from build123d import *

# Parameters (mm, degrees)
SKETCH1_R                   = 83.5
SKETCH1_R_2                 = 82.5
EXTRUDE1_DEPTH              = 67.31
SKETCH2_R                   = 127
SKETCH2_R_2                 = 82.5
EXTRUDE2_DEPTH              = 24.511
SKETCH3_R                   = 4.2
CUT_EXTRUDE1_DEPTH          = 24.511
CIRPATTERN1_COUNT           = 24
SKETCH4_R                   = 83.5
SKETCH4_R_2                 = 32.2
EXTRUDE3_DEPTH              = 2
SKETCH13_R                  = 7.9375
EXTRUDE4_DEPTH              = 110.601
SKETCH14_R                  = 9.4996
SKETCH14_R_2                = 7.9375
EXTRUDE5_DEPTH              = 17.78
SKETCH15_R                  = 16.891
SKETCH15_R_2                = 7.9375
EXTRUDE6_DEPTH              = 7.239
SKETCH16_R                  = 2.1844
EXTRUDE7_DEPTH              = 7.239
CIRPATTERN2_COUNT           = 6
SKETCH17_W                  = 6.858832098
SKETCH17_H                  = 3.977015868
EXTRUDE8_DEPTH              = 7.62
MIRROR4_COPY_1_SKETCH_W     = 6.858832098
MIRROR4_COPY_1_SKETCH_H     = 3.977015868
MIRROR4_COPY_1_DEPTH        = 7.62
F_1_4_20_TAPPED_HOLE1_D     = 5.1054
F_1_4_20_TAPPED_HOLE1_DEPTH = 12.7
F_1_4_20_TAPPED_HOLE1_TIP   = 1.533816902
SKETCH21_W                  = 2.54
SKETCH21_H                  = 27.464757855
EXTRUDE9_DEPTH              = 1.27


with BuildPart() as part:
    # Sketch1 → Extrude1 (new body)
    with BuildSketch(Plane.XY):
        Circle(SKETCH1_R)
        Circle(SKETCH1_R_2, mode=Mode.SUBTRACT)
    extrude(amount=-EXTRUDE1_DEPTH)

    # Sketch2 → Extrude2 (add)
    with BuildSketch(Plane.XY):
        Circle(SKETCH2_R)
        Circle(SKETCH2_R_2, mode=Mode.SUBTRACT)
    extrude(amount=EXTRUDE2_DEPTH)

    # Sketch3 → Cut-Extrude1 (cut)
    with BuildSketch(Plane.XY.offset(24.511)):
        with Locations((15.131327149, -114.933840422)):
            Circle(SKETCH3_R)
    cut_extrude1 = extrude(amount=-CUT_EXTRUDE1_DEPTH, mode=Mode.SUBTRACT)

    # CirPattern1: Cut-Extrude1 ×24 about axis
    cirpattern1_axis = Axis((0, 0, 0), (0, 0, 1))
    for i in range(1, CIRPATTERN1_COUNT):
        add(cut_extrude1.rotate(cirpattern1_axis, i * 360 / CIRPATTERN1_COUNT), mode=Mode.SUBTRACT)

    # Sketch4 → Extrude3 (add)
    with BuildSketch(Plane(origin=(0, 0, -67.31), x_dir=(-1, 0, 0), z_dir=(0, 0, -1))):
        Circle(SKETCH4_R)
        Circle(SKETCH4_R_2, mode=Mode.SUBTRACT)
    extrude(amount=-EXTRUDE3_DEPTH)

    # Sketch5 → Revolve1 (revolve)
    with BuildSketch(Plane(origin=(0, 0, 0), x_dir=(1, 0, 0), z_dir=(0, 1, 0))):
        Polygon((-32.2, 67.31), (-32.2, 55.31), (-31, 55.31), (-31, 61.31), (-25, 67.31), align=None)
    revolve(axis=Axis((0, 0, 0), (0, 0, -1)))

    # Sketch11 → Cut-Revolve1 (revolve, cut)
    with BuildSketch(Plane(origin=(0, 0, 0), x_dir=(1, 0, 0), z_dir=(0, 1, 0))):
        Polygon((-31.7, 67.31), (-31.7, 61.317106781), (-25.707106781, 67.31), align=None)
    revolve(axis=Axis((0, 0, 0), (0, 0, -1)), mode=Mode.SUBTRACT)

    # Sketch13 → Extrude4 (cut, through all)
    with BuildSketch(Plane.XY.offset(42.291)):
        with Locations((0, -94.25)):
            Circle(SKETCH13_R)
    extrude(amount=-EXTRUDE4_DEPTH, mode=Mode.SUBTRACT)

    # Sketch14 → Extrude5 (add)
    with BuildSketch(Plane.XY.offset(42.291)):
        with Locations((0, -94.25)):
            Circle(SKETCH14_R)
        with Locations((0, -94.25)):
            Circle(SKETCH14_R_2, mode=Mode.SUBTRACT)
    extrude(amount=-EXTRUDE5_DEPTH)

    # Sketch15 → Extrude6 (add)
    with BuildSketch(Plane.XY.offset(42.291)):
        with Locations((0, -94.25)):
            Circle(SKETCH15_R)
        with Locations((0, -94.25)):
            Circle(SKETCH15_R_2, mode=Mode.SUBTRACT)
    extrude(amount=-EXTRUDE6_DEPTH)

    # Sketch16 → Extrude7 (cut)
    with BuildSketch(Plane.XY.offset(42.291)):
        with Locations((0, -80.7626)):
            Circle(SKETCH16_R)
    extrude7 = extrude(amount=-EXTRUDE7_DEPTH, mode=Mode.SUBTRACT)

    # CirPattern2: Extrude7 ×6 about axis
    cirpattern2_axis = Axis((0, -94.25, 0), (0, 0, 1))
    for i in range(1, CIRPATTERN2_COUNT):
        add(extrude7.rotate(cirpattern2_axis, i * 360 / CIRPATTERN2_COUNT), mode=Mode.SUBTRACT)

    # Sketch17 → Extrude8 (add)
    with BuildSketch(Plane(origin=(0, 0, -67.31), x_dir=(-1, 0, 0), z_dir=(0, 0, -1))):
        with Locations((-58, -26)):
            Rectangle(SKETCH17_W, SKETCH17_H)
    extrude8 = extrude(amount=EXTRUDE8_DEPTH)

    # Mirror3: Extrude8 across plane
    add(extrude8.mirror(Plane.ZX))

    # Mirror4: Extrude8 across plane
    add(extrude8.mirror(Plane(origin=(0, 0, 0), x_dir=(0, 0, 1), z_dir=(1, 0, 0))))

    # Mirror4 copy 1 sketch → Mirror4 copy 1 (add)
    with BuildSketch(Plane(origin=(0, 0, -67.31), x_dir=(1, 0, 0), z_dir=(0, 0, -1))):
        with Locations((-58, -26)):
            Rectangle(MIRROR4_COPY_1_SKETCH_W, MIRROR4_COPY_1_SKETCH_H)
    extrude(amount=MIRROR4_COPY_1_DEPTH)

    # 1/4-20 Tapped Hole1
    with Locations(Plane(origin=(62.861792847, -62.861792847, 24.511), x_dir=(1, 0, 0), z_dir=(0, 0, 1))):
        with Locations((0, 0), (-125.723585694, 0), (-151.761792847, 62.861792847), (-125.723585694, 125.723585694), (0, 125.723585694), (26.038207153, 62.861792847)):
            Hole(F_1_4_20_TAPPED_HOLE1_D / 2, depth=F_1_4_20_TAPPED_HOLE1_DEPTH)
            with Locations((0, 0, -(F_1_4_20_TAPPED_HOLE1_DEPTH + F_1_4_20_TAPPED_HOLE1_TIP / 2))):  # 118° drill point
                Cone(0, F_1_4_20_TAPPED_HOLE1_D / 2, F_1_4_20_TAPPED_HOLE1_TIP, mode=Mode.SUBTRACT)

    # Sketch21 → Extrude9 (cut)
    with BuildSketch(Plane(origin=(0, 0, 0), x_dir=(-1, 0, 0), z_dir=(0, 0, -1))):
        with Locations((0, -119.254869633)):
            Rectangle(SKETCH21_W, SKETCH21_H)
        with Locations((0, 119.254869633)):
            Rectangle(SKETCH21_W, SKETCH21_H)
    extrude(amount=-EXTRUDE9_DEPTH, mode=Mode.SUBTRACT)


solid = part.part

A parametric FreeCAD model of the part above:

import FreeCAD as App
import Part
import Sketcher
from FreeCAD import Vector
Q = App.Units.Quantity

doc = App.newDocument("Part")
body = doc.addObject("PartDesign::Body", "Body")

sketch1 = body.newObject("Sketcher::SketchObject", "Sketch")
sketch1.AttachmentSupport = (doc.getObject("XY_Plane"), [""])
sketch1.MapMode = "FlatFace"
sketch1.addGeometry(Part.Circle(Vector(0, 0, 0), Vector(0, 0, 1), 84), False)
sketch1.addGeometry(Part.Circle(Vector(0, 0, 0), Vector(0, 0, 1), 82), False)
sketch1.addConstraint(Sketcher.Constraint("Coincident", 0, 3, -1, 1))
sketch1.addConstraint(Sketcher.Constraint("Coincident", 1, 3, -1, 1))
sketch1.addConstraint(Sketcher.Constraint("Diameter", 0, Q("167 mm")))
sketch1.addConstraint(Sketcher.Constraint("Diameter", 1, Q("165 mm")))
pad1 = body.newObject("PartDesign::Pad", "Pad")
pad1.Profile = sketch1
pad1.Length = Q("2.65 in")
pad1.Reversed = True

sketch2 = body.newObject("Sketcher::SketchObject", "Sketch001")
sketch2.AttachmentSupport = (doc.getObject("XY_Plane"), [""])
sketch2.MapMode = "FlatFace"
sketch2.addGeometry(Part.Circle(Vector(0, 0, 0), Vector(0, 0, 1), 127), False)
sketch2.addGeometry(Part.Circle(Vector(0, 0, 0), Vector(0, 0, 1), 82), False)
sketch2.addConstraint(Sketcher.Constraint("Coincident", 0, 3, -1, 1))
sketch2.addConstraint(Sketcher.Constraint("Coincident", 1, 3, -1, 1))
sketch2.addConstraint(Sketcher.Constraint("Diameter", 0, Q("10 in")))
sketch2.addConstraint(Sketcher.Constraint("Diameter", 1, Q("165 mm")))
pad2 = body.newObject("PartDesign::Pad", "Pad001")
pad2.Profile = sketch2
pad2.Length = Q("0.965 in")

sketch3 = body.newObject("Sketcher::SketchObject", "Sketch002")
sketch3.AttachmentSupport = (doc.getObject("XY_Plane"), [""])
sketch3.MapMode = "FlatFace"
sketch3.AttachmentOffset = App.Placement(Vector(0, 0, 0.965 * 25.4), App.Rotation())
sketch3.addGeometry(Part.Circle(Vector(15.1, -114.9, 0), Vector(0, 0, 1), 4.2), False)
sketch3.addConstraint(Sketcher.Constraint("Diameter", 0, Q("8.4 mm")))
sketch3.addConstraint(Sketcher.Constraint("DistanceY", 0, 3, -1, 1, Q("114.93384 mm")))
sketch3.addConstraint(Sketcher.Constraint("DistanceX", -1, 1, 0, 3, Q("15.131327 mm")))
pocket1 = body.newObject("PartDesign::Pocket", "Pocket")
pocket1.Profile = sketch3
pocket1.Length = Q("0.965 in")
doc.recompute()

polarpattern = body.newObject("PartDesign::PolarPattern", "PolarPattern")
polarpattern.Originals = [pocket1]
polarpattern.Axis = (doc.getObject("Z_Axis"), [""])
polarpattern.Angle = 360
polarpattern.Occurrences = 24
body.Tip = polarpattern

sketch4 = body.newObject("Sketcher::SketchObject", "Sketch003")
sketch4.AttachmentSupport = (doc.getObject("XY_Plane"), [""])
sketch4.MapMode = "FlatFace"
sketch4.AttachmentOffset = App.Placement(Vector(0, 0, -2.65 * 25.4), App.Rotation())
sketch4.addGeometry(Part.Circle(Vector(0, 0, 0), Vector(0, 0, 1), 84), False)
sketch4.addGeometry(Part.Circle(Vector(0, 0, 0), Vector(0, 0, 1), 32), False)
sketch4.addConstraint(Sketcher.Constraint("Coincident", 0, 3, -1, 1))
sketch4.addConstraint(Sketcher.Constraint("Coincident", 1, 3, -1, 1))
sketch4.addConstraint(Sketcher.Constraint("Diameter", 0, Q("167 mm")))
sketch4.addConstraint(Sketcher.Constraint("Diameter", 1, Q("64.4 mm")))
pad3 = body.newObject("PartDesign::Pad", "Pad002")
pad3.Profile = sketch4
pad3.Length = 2

sketch5 = body.newObject("Sketcher::SketchObject", "Sketch004")
sketch5.AttachmentSupport = (doc.getObject("XZ_Plane"), [""])
sketch5.MapMode = "FlatFace"
sketch5.addGeometry(Part.LineSegment(Vector(-32.2, -67.3, 0), Vector(-32.2, -55.3, 0)), False)
sketch5.addGeometry(Part.LineSegment(Vector(-32.2, -55.3, 0), Vector(-31, -55.3, 0)), False)
sketch5.addGeometry(Part.LineSegment(Vector(-31, -55.3, 0), Vector(-31, -61.3, 0)), False)
sketch5.addGeometry(Part.LineSegment(Vector(-31, -61.3, 0), Vector(-25, -67.3, 0)), False)
sketch5.addGeometry(Part.LineSegment(Vector(-25, -67.3, 0), Vector(-32.2, -67.3, 0)), False)
sketch5.addConstraint(Sketcher.Constraint("Coincident", 0, 2, 1, 1))
sketch5.addConstraint(Sketcher.Constraint("Coincident", 1, 2, 2, 1))
sketch5.addConstraint(Sketcher.Constraint("Coincident", 2, 2, 3, 1))
sketch5.addConstraint(Sketcher.Constraint("Coincident", 3, 2, 4, 1))
sketch5.addConstraint(Sketcher.Constraint("Coincident", 4, 2, 0, 1))
sketch5.addConstraint(Sketcher.Constraint("Vertical", 0))
sketch5.addConstraint(Sketcher.Constraint("Horizontal", 1))
sketch5.addConstraint(Sketcher.Constraint("Vertical", 2))
sketch5.addConstraint(Sketcher.Constraint("Horizontal", 4))
sketch5.addConstraint(Sketcher.Constraint("Angle", 3, Q("-45 deg")))
sketch5.addConstraint(Sketcher.Constraint("DistanceY", 3, 2, -1, 1, Q("2.65 in")))
sketch5.addConstraint(Sketcher.Constraint("DistanceX", 1, 1, 1, 2, Q("1.2 mm")))
sketch5.addConstraint(Sketcher.Constraint("DistanceX", 4, 2, 4, 1, Q("7.2 mm")))
sketch5.addConstraint(Sketcher.Constraint("DistanceY", 0, 1, 0, 2, Q("12 mm")))
sketch5.addConstraint(Sketcher.Constraint("DistanceX", 0, 2, -1, 1, Q("32.2 mm")))
revolution = body.newObject("PartDesign::Revolution", "Revolution")
revolution.Profile = sketch5
revolution.ReferenceAxis = (sketch5, ["V_Axis"])
revolution.Angle = 360

sketch6 = body.newObject("Sketcher::SketchObject", "Sketch005")
sketch6.AttachmentSupport = (doc.getObject("XZ_Plane"), [""])
sketch6.MapMode = "FlatFace"
sketch6.addGeometry(Part.LineSegment(Vector(-32, -67, 0), Vector(-32, -61, 0)), False)
sketch6.addGeometry(Part.LineSegment(Vector(-32, -61, 0), Vector(-26, -67, 0)), False)
sketch6.addGeometry(Part.LineSegment(Vector(-26, -67, 0), Vector(-32, -67, 0)), False)
sketch6.addConstraint(Sketcher.Constraint("Coincident", 0, 2, 1, 1))
sketch6.addConstraint(Sketcher.Constraint("Coincident", 1, 2, 2, 1))
sketch6.addConstraint(Sketcher.Constraint("Coincident", 2, 2, 0, 1))
sketch6.addConstraint(Sketcher.Constraint("Vertical", 0))
sketch6.addConstraint(Sketcher.Constraint("Horizontal", 2))
sketch6.addConstraint(Sketcher.Constraint("Equal", 2, 0))
sketch6.addConstraint(Sketcher.Constraint("DistanceY", 1, 2, -1, 1, Q("2.65 in")))
sketch6.addConstraint(Sketcher.Constraint("DistanceX", 0, 2, -1, 1, Q("31.7 mm")))
sketch6.addConstraint(Sketcher.Constraint("Distance", 1, Q("8.475231 mm")))
groove = body.newObject("PartDesign::Groove", "Groove")
groove.Profile = sketch6
groove.ReferenceAxis = (sketch6, ["V_Axis"])
groove.Angle = 360

sketch7 = body.newObject("Sketcher::SketchObject", "Sketch006")
sketch7.AttachmentSupport = (doc.getObject("XY_Plane"), [""])
sketch7.MapMode = "FlatFace"
sketch7.AttachmentOffset = App.Placement(Vector(0, 0, 1.665 * 25.4), App.Rotation())
sketch7.addGeometry(Part.Circle(Vector(0, -94, 0), Vector(0, 0, 1), 8), False)
sketch7.addConstraint(Sketcher.Constraint("PointOnObject", 0, 3, -2))
sketch7.addConstraint(Sketcher.Constraint("Diameter", 0, Q("0.625 in")))
sketch7.addConstraint(Sketcher.Constraint("DistanceY", 0, 3, -1, 1, Q("94.25 mm")))
pocket2 = body.newObject("PartDesign::Pocket", "Pocket001")
pocket2.Profile = sketch7
pocket2.Type = "ThroughAll"

sketch8 = body.newObject("Sketcher::SketchObject", "Sketch007")
sketch8.AttachmentSupport = (doc.getObject("XY_Plane"), [""])
sketch8.MapMode = "FlatFace"
sketch8.AttachmentOffset = App.Placement(Vector(0, 0, 1.665 * 25.4), App.Rotation())
sketch8.addGeometry(Part.Circle(Vector(0, -94, 0), Vector(0, 0, 1), 9), False)
sketch8.addGeometry(Part.Circle(Vector(0, -94, 0), Vector(0, 0, 1), 8), False)
sketch8.addConstraint(Sketcher.Constraint("Coincident", 1, 3, 0, 3))
sketch8.addConstraint(Sketcher.Constraint("PointOnObject", 0, 3, -2))
sketch8.addConstraint(Sketcher.Constraint("Diameter", 0, Q("0.748 in")))
sketch8.addConstraint(Sketcher.Constraint("Diameter", 1, Q("0.625 in")))
sketch8.addConstraint(Sketcher.Constraint("DistanceY", 0, 3, -1, 1, Q("94.25 mm")))
pad4 = body.newObject("PartDesign::Pad", "Pad003")
pad4.Profile = sketch8
pad4.Length = Q("0.7 in")
pad4.Reversed = True

sketch9 = body.newObject("Sketcher::SketchObject", "Sketch008")
sketch9.AttachmentSupport = (doc.getObject("XY_Plane"), [""])
sketch9.MapMode = "FlatFace"
sketch9.AttachmentOffset = App.Placement(Vector(0, 0, 1.665 * 25.4), App.Rotation())
sketch9.addGeometry(Part.Circle(Vector(0, -94, 0), Vector(0, 0, 1), 17), False)
sketch9.addGeometry(Part.Circle(Vector(0, -94, 0), Vector(0, 0, 1), 8), False)
sketch9.addConstraint(Sketcher.Constraint("Coincident", 1, 3, 0, 3))
sketch9.addConstraint(Sketcher.Constraint("PointOnObject", 0, 3, -2))
sketch9.addConstraint(Sketcher.Constraint("Diameter", 0, Q("1.33 in")))
sketch9.addConstraint(Sketcher.Constraint("Diameter", 1, Q("0.625 in")))
sketch9.addConstraint(Sketcher.Constraint("DistanceY", 0, 3, -1, 1, Q("94.25 mm")))
pad5 = body.newObject("PartDesign::Pad", "Pad004")
pad5.Profile = sketch9
pad5.Length = Q("0.285 in")
pad5.Reversed = True

sketch10 = body.newObject("Sketcher::SketchObject", "Sketch009")
sketch10.AttachmentSupport = (doc.getObject("XY_Plane"), [""])
sketch10.MapMode = "FlatFace"
sketch10.AttachmentOffset = App.Placement(Vector(0, 0, 1.665 * 25.4), App.Rotation())
sketch10.addGeometry(Part.Circle(Vector(0, -80.8, 0), Vector(0, 0, 1), 2.2), False)
sketch10.addConstraint(Sketcher.Constraint("PointOnObject", 0, 3, -2))
sketch10.addConstraint(Sketcher.Constraint("Diameter", 0, Q("0.172 in")))
sketch10.addConstraint(Sketcher.Constraint("DistanceY", 0, 3, -1, 1, Q("80.7626 mm")))
pocket3 = body.newObject("PartDesign::Pocket", "Pocket002")
pocket3.Profile = sketch10
pocket3.Length = Q("0.285 in")
doc.recompute()

datumline = body.newObject("PartDesign::Line", "DatumLine")
datumline.Placement = App.Placement(Vector(0, -94.25, 0), App.Rotation(Vector(0, 0, 1), Vector(0, 0, 1)))
polarpattern2 = body.newObject("PartDesign::PolarPattern", "PolarPattern001")
polarpattern2.Originals = [pocket3]
polarpattern2.Axis = (datumline, [""])
polarpattern2.Angle = 360
polarpattern2.Occurrences = 6
body.Tip = polarpattern2

sketch11 = body.newObject("Sketcher::SketchObject", "Sketch010")
sketch11.AttachmentSupport = (doc.getObject("XY_Plane"), [""])
sketch11.MapMode = "FlatFace"
sketch11.AttachmentOffset = App.Placement(Vector(0, 0, -2.65 * 25.4), App.Rotation())
sketch11.addGeometry(Part.LineSegment(Vector(61.4, -24, 0), Vector(61.4, -28, 0)), False)
sketch11.addGeometry(Part.LineSegment(Vector(61.4, -28, 0), Vector(54.6, -28, 0)), False)
sketch11.addGeometry(Part.LineSegment(Vector(54.6, -28, 0), Vector(54.6, -24, 0)), False)
sketch11.addGeometry(Part.LineSegment(Vector(54.6, -24, 0), Vector(61.4, -24, 0)), False)
sketch11.addConstraint(Sketcher.Constraint("Coincident", 0, 2, 1, 1))
sketch11.addConstraint(Sketcher.Constraint("Coincident", 1, 2, 2, 1))
sketch11.addConstraint(Sketcher.Constraint("Coincident", 2, 2, 3, 1))
sketch11.addConstraint(Sketcher.Constraint("Coincident", 3, 2, 0, 1))
sketch11.addConstraint(Sketcher.Constraint("Vertical", 0))
sketch11.addConstraint(Sketcher.Constraint("Horizontal", 1))
sketch11.addConstraint(Sketcher.Constraint("Vertical", 2))
sketch11.addConstraint(Sketcher.Constraint("Horizontal", 3))
sketch11.addConstraint(Sketcher.Constraint("DistanceX", 1, 2, 1, 1, Q("6.858832 mm")))
sketch11.addConstraint(Sketcher.Constraint("DistanceY", 0, 2, 0, 1, Q("3.977016 mm")))
sketch11.addConstraint(Sketcher.Constraint("DistanceX", -1, 1, 0, 2, Q("61.429416 mm")))
sketch11.addConstraint(Sketcher.Constraint("DistanceY", 0, 2, -1, 1, Q("27.988508 mm")))
pad6 = body.newObject("PartDesign::Pad", "Pad005")
pad6.Profile = sketch11
pad6.Length = Q("0.3 in")
pad6.Reversed = True
doc.recompute()

mirrored = body.newObject("PartDesign::Mirrored", "Mirrored")
mirrored.Originals = [pad6]
mirrored.MirrorPlane = (doc.getObject("XZ_Plane"), [""])
body.Tip = mirrored
doc.recompute()

mirrored2 = body.newObject("PartDesign::Mirrored", "Mirrored001")
mirrored2.Originals = [pad6]
mirrored2.MirrorPlane = (doc.getObject("YZ_Plane"), [""])
body.Tip = mirrored2

sketch12 = body.newObject("Sketcher::SketchObject", "Sketch011")
sketch12.AttachmentSupport = (doc.getObject("XY_Plane"), [""])
sketch12.MapMode = "FlatFace"
sketch12.AttachmentOffset = App.Placement(Vector(0, 0, -2.65 * 25.4), App.Rotation())
sketch12.addGeometry(Part.LineSegment(Vector(-61.4, 24, 0), Vector(-61.4, 28, 0)), False)
sketch12.addGeometry(Part.LineSegment(Vector(-61.4, 28, 0), Vector(-54.6, 28, 0)), False)
sketch12.addGeometry(Part.LineSegment(Vector(-54.6, 28, 0), Vector(-54.6, 24, 0)), False)
sketch12.addGeometry(Part.LineSegment(Vector(-54.6, 24, 0), Vector(-61.4, 24, 0)), False)
sketch12.addConstraint(Sketcher.Constraint("Coincident", 0, 2, 1, 1))
sketch12.addConstraint(Sketcher.Constraint("Coincident", 1, 2, 2, 1))
sketch12.addConstraint(Sketcher.Constraint("Coincident", 2, 2, 3, 1))
sketch12.addConstraint(Sketcher.Constraint("Coincident", 3, 2, 0, 1))
sketch12.addConstraint(Sketcher.Constraint("Vertical", 0))
sketch12.addConstraint(Sketcher.Constraint("Horizontal", 1))
sketch12.addConstraint(Sketcher.Constraint("Vertical", 2))
sketch12.addConstraint(Sketcher.Constraint("Horizontal", 3))
sketch12.addConstraint(Sketcher.Constraint("DistanceX", 1, 1, 1, 2, Q("6.858832 mm")))
sketch12.addConstraint(Sketcher.Constraint("DistanceY", 0, 1, 0, 2, Q("3.977016 mm")))
sketch12.addConstraint(Sketcher.Constraint("DistanceX", 0, 2, -1, 1, Q("61.429416 mm")))
sketch12.addConstraint(Sketcher.Constraint("DistanceY", -1, 1, 0, 2, Q("27.988508 mm")))
pad7 = body.newObject("PartDesign::Pad", "Pad006")
pad7.Profile = sketch12
pad7.Length = Q("0.3 in")
pad7.Reversed = True

sketch13 = body.newObject("Sketcher::SketchObject", "Sketch012")
sketch13.AttachmentSupport = (doc.getObject("XY_Plane"), [""])
sketch13.MapMode = "FlatFace"
sketch13.AttachmentOffset = App.Placement(Vector(0, 0, 0.965 * 25.4), App.Rotation())
sketch13.addGeometry(Part.Circle(Vector(62.9, -62.9, 0), Vector(0, 0, 1), 2.6), False)
sketch13.addGeometry(Part.Circle(Vector(-62.9, -62.9, 0), Vector(0, 0, 1), 2.6), False)
sketch13.addGeometry(Part.Circle(Vector(-88.9, 0, 0), Vector(0, 0, 1), 2.6), False)
sketch13.addGeometry(Part.Circle(Vector(-62.9, 62.9, 0), Vector(0, 0, 1), 2.6), False)
sketch13.addGeometry(Part.Circle(Vector(62.9, 62.9, 0), Vector(0, 0, 1), 2.6), False)
sketch13.addGeometry(Part.Circle(Vector(88.9, 0, 0), Vector(0, 0, 1), 2.6), False)
sketch13.addConstraint(Sketcher.Constraint("Equal", 0, 1))
sketch13.addConstraint(Sketcher.Constraint("Equal", 1, 2))
sketch13.addConstraint(Sketcher.Constraint("Equal", 2, 3))
sketch13.addConstraint(Sketcher.Constraint("Equal", 3, 4))
sketch13.addConstraint(Sketcher.Constraint("Equal", 4, 5))
sketch13.addConstraint(Sketcher.Constraint("Symmetric", 0, 3, 3, 3, -1, 1))
sketch13.addConstraint(Sketcher.Constraint("Symmetric", 1, 3, 4, 3, -1, 1))
sketch13.addConstraint(Sketcher.Constraint("Symmetric", 2, 3, 5, 3, -1, 1))
sketch13.addConstraint(Sketcher.Constraint("Symmetric", 0, 3, 1, 3, -2))
sketch13.addConstraint(Sketcher.Constraint("PointOnObject", 2, 3, -1))
sketch13.addConstraint(Sketcher.Constraint("Diameter", 0, Q("0.201 in")))
sketch13.addConstraint(Sketcher.Constraint("DistanceX", 2, 3, 5, 3, Q("7 in")))
sketch13.addConstraint(Sketcher.Constraint("DistanceX", -1, 1, 0, 3, Q("62.861793 mm")))
sketch13.addConstraint(Sketcher.Constraint("DistanceY", 0, 3, -1, 1, Q("62.861793 mm")))
doc.recompute()
hole = body.newObject("PartDesign::Hole", "Hole")
hole.Profile = sketch13
hole.ThreadType = "None"
hole.Diameter = Q("0.201 in")
hole.DepthType = "Dimension"
hole.Depth = Q("0.5 in")
hole.DrillPoint = "Angled"
hole.DrillPointAngle = 118

sketch14 = body.newObject("Sketcher::SketchObject", "Sketch013")
sketch14.AttachmentSupport = (doc.getObject("XY_Plane"), [""])
sketch14.MapMode = "FlatFace"
sketch14.addGeometry(Part.LineSegment(Vector(1.3, -105.5, 0), Vector(1.3, -133, 0)), False)
sketch14.addGeometry(Part.LineSegment(Vector(1.3, -133, 0), Vector(-1.3, -133, 0)), False)
sketch14.addGeometry(Part.LineSegment(Vector(-1.3, -133, 0), Vector(-1.3, -105.5, 0)), False)
sketch14.addGeometry(Part.LineSegment(Vector(-1.3, -105.5, 0), Vector(1.3, -105.5, 0)), False)
sketch14.addGeometry(Part.LineSegment(Vector(1.3, 133, 0), Vector(1.3, 105.5, 0)), False)
sketch14.addGeometry(Part.LineSegment(Vector(1.3, 105.5, 0), Vector(-1.3, 105.5, 0)), False)
sketch14.addGeometry(Part.LineSegment(Vector(-1.3, 105.5, 0), Vector(-1.3, 133, 0)), False)
sketch14.addGeometry(Part.LineSegment(Vector(-1.3, 133, 0), Vector(1.3, 133, 0)), False)
sketch14.addConstraint(Sketcher.Constraint("Coincident", 0, 2, 1, 1))
sketch14.addConstraint(Sketcher.Constraint("Coincident", 1, 2, 2, 1))
sketch14.addConstraint(Sketcher.Constraint("Coincident", 2, 2, 3, 1))
sketch14.addConstraint(Sketcher.Constraint("Coincident", 3, 2, 0, 1))
sketch14.addConstraint(Sketcher.Constraint("Coincident", 4, 2, 5, 1))
sketch14.addConstraint(Sketcher.Constraint("Coincident", 5, 2, 6, 1))
sketch14.addConstraint(Sketcher.Constraint("Coincident", 6, 2, 7, 1))
sketch14.addConstraint(Sketcher.Constraint("Coincident", 7, 2, 4, 1))
sketch14.addConstraint(Sketcher.Constraint("Vertical", 0))
sketch14.addConstraint(Sketcher.Constraint("Horizontal", 1))
sketch14.addConstraint(Sketcher.Constraint("Vertical", 2))
sketch14.addConstraint(Sketcher.Constraint("Horizontal", 3))
sketch14.addConstraint(Sketcher.Constraint("Vertical", 4))
sketch14.addConstraint(Sketcher.Constraint("Horizontal", 5))
sketch14.addConstraint(Sketcher.Constraint("Vertical", 6))
sketch14.addConstraint(Sketcher.Constraint("Horizontal", 7))
sketch14.addConstraint(Sketcher.Constraint("Symmetric", 2, 2, 4, 2, -1, 1))
sketch14.addConstraint(Sketcher.Constraint("Symmetric", 0, 2, 6, 2, -1, 1))
sketch14.addConstraint(Sketcher.Constraint("Vertical", 3, 2, 4, 2))
sketch14.addConstraint(Sketcher.Constraint("DistanceX", 1, 2, 1, 1, Q("0.1 in")))
sketch14.addConstraint(Sketcher.Constraint("DistanceY", 0, 2, 0, 1, Q("27.464758 mm")))
sketch14.addConstraint(Sketcher.Constraint("DistanceY", 0, 2, -1, 1, Q("132.987249 mm")))
pocket4 = body.newObject("PartDesign::Pocket", "Pocket003")
pocket4.Profile = sketch14
pocket4.Length = Q("0.05 in")
pocket4.Reversed = True

doc.recompute()
